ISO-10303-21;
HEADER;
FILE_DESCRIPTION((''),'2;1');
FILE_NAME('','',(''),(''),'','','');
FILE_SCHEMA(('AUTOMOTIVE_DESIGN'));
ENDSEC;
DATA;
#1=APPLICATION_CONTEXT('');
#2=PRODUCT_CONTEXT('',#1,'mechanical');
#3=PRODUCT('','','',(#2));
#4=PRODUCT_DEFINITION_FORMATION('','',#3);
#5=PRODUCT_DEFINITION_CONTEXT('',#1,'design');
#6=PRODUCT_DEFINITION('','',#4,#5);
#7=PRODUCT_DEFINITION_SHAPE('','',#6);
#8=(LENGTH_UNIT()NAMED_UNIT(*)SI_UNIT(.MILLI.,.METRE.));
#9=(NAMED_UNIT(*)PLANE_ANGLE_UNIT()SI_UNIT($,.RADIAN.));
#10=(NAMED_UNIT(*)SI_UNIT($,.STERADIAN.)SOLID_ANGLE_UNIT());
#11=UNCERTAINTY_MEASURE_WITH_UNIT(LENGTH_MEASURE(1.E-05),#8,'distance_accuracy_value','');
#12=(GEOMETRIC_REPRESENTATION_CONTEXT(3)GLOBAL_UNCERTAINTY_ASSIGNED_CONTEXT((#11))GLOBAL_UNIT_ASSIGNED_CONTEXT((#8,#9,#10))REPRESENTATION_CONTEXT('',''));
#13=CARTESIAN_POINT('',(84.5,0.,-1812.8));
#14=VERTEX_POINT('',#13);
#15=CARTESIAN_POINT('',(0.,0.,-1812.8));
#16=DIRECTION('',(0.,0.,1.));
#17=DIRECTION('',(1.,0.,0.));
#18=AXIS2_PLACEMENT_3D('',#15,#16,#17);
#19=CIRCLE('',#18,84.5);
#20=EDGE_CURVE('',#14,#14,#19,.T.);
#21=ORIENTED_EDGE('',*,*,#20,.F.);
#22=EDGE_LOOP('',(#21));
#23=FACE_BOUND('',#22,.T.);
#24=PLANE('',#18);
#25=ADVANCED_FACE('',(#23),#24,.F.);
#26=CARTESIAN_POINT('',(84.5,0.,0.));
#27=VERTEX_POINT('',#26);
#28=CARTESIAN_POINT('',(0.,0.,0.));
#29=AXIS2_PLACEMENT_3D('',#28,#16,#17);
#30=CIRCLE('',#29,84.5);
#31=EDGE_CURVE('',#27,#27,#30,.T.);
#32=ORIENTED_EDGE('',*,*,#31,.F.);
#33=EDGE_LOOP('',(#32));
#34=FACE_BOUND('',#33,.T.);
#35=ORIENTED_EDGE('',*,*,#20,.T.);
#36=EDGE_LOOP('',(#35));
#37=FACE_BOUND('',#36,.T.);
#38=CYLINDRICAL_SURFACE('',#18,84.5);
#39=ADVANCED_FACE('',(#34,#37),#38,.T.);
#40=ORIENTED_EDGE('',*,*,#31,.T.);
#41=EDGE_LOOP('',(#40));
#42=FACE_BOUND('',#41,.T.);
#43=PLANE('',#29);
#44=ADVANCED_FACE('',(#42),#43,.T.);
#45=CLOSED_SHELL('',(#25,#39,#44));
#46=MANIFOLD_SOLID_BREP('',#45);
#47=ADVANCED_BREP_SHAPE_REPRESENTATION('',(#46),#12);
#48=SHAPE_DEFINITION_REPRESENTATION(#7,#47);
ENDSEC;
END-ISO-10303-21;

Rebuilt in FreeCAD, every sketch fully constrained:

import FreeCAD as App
import Part
import Sketcher

V = App.Vector

doc = App.newDocument("Part")
params = doc.addObject("Spreadsheet::Sheet", "Params")
for row, (alias, value) in enumerate([
    ("sketch1_diameter", "169 mm"),
    ("pad1_length", "1812.8 mm"),
], start=1):
    params.set(f"A{row}", alias)
    params.set(f"B{row}", "=" + value)
    params.setAlias(f"B{row}", alias)

body = doc.addObject("PartDesign::Body", "Body")

# Sketch on XY plane
sketch1 = body.newObject("Sketcher::SketchObject", "Sketch")
sketch1.AttachmentSupport = (doc.getObject("XY_Plane"), [""])
sketch1.MapMode = "FlatFace"
sketch1.addGeometry(Part.Circle(V(0, 0, 0), V(0, 0, 1), 84), False)
sketch1.addConstraint(Sketcher.Constraint("Coincident", 0, 3, -1, 1))
sketch1.addConstraint(Sketcher.Constraint("Diameter", 0, 169.0))
sketch1.setExpression("Constraints[1]", "Params.sketch1_diameter")
pad1 = body.newObject("PartDesign::Pad", "Pad")
pad1.Profile = sketch1
pad1.setExpression("Length", "Params.pad1_length")
pad1.Reversed = True

doc.recompute()
